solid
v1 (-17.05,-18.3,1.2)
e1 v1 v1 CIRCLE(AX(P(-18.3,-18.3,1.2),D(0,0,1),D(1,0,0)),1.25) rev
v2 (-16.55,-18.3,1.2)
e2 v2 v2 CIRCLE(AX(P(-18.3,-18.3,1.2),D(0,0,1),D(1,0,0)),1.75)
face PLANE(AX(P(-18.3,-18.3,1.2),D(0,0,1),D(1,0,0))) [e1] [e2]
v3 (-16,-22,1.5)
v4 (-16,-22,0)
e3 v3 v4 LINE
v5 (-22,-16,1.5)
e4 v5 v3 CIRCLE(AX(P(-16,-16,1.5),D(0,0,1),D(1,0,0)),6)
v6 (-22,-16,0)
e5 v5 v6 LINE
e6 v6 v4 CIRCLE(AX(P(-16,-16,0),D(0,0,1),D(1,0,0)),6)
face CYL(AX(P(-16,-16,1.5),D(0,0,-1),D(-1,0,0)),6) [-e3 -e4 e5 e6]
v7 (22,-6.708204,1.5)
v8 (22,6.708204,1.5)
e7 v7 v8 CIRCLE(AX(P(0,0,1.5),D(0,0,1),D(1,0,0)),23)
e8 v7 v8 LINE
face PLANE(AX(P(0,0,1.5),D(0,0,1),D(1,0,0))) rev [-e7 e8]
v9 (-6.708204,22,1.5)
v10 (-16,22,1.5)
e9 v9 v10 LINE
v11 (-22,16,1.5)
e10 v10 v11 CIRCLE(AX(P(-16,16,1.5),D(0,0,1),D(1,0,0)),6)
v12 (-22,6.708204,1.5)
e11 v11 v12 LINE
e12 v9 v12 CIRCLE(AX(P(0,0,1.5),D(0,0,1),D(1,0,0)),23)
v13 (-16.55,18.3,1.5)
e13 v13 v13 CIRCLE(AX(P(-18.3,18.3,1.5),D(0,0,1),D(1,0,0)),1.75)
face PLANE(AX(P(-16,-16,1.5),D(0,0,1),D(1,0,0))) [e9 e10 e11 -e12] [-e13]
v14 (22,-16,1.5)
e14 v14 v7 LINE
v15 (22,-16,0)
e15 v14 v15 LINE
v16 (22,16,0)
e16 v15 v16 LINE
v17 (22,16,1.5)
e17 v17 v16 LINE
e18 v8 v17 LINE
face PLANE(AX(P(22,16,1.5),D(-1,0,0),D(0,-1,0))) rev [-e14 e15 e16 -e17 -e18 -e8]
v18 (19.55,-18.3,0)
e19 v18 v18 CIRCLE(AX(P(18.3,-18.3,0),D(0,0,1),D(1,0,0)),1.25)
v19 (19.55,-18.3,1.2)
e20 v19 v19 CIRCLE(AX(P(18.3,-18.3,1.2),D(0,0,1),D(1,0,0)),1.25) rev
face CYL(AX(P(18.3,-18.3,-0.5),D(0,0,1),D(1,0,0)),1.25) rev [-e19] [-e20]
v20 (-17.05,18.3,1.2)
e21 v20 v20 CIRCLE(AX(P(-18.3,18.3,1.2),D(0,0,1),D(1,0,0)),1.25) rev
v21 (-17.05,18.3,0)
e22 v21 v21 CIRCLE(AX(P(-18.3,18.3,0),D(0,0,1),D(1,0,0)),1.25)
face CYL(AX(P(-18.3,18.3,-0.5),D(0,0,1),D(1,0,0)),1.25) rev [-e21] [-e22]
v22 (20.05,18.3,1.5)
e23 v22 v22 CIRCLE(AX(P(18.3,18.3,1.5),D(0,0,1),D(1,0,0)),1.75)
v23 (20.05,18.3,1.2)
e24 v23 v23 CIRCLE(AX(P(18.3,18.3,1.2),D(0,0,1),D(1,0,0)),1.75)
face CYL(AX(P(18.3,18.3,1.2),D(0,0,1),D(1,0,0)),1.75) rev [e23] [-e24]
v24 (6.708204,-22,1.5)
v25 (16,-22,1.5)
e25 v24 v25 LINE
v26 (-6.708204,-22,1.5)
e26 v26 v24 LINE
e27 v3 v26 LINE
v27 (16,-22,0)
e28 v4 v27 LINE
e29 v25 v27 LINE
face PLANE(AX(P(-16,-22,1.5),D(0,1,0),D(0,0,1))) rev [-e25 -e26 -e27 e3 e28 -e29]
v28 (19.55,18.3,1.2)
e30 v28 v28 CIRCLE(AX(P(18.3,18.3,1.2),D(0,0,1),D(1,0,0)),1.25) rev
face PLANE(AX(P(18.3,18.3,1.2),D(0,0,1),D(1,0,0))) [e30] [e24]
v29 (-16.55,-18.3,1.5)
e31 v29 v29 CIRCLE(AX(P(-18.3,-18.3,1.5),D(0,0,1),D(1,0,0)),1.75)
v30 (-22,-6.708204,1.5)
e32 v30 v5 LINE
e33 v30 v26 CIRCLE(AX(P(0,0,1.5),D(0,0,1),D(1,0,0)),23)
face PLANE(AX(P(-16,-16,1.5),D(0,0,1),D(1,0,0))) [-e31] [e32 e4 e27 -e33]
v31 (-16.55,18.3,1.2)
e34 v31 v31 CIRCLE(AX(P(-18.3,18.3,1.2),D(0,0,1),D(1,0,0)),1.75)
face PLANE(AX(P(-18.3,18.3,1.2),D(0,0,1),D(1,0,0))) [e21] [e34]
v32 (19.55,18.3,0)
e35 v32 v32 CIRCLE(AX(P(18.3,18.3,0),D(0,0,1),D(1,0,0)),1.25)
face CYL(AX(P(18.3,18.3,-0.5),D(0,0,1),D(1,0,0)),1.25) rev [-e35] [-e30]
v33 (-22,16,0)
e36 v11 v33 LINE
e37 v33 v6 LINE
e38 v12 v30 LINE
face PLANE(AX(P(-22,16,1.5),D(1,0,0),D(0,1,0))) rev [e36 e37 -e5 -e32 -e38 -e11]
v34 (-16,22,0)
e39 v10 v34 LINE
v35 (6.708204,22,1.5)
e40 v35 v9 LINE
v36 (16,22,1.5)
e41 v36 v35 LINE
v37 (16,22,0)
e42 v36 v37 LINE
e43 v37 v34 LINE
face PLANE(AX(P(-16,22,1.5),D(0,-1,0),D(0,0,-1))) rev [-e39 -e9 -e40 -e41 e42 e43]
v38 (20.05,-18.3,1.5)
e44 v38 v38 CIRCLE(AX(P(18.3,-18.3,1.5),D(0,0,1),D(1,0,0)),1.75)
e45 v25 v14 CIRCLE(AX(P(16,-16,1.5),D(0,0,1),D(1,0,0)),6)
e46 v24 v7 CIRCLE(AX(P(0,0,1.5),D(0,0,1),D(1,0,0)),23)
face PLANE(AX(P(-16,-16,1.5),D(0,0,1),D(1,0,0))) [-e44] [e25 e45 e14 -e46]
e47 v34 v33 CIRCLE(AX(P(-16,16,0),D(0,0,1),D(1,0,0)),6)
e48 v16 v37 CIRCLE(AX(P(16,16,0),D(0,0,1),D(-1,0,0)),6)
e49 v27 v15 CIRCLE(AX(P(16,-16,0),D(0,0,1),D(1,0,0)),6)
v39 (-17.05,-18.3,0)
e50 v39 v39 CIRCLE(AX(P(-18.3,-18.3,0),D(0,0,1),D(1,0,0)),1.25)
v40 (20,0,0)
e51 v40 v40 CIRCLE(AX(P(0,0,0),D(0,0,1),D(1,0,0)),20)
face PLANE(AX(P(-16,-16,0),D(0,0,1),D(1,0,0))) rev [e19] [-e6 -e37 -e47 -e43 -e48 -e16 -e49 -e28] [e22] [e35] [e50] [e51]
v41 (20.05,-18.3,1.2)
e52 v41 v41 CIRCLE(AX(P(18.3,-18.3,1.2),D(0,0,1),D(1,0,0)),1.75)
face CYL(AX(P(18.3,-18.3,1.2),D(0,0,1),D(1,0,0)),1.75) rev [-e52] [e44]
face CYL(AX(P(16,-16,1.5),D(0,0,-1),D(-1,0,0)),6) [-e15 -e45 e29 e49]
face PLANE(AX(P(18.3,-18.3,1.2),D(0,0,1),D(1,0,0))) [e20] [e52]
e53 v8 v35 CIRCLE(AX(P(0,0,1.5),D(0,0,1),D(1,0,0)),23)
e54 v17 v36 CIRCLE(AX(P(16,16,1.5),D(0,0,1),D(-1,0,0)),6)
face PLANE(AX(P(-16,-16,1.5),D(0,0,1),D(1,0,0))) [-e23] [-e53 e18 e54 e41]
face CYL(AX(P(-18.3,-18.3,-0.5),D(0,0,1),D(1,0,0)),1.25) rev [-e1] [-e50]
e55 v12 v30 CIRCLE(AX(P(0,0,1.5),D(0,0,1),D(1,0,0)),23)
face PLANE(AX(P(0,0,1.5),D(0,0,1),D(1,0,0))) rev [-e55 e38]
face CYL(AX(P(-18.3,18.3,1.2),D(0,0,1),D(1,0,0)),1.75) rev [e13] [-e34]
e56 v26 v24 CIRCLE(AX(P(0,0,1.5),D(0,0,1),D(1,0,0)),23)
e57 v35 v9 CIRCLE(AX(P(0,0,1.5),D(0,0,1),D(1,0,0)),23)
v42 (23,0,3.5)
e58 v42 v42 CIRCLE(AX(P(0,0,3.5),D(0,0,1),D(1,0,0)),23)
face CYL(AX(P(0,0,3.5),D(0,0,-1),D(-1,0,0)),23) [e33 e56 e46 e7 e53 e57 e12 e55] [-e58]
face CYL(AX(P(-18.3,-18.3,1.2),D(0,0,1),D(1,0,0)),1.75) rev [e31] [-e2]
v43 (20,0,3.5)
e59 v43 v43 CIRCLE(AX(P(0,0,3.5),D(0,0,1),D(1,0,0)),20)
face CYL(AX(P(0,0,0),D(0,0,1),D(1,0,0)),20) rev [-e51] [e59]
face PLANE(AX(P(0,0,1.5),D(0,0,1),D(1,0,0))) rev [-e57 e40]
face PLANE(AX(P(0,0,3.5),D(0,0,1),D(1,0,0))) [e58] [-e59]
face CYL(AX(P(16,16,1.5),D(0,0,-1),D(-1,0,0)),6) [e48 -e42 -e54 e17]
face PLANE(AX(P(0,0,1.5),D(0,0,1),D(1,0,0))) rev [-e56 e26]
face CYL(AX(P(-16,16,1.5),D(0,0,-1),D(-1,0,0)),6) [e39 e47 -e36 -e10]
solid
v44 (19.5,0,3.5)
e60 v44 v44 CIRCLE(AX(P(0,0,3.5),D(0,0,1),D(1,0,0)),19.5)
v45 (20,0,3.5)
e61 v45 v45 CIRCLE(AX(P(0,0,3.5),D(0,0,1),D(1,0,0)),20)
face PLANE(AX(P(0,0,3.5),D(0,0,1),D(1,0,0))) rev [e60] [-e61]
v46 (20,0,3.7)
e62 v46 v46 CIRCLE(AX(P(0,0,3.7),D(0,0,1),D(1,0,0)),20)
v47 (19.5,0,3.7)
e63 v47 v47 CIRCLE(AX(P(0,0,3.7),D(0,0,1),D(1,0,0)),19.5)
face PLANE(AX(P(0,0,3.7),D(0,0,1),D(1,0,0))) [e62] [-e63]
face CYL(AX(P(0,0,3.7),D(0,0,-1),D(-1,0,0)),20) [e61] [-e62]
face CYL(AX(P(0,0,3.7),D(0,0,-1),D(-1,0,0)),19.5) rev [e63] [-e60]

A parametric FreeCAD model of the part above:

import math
import FreeCAD as App
import Part
import Sketcher

V = App.Vector

doc = App.newDocument("Part")
params = doc.addObject("Spreadsheet::Sheet", "Params")
for row, (alias, value) in enumerate([
    ("sketch1_radius", "6 mm"),
    ("sketch1_width", "32 mm"),
    ("pad1_length", "1.5 mm"),
    ("sketch2_diameter", "40 mm"),
    ("sketch3_diameter", "46 mm"),
    ("sketch3_diameter2", "40 mm"),
    ("pad2_length", "2 mm"),
    ("sketch4_diameter", "2.5 mm"),
    ("pocket2_length", "2 mm"),
    ("sketch5_diameter", "3.5 mm"),
    ("pocket3_length", "0.3 mm"),
    ("sketch6_diameter", "40 mm"),
    ("sketch6_diameter2", "39 mm"),
    ("pad3_length", "0.2 mm"),
], start=1):
    params.set(f"A{row}", alias)
    params.set(f"B{row}", "=" + value)
    params.setAlias(f"B{row}", alias)

body = doc.addObject("PartDesign::Body", "Body")

sketch1 = body.newObject("Sketcher::SketchObject", "Sketch")
sketch1.AttachmentSupport = (doc.getObject("XY_Plane"), [""])
sketch1.MapMode = "FlatFace"
sketch1.addGeometry([
    Part.LineSegment(V(16, 22, 0), V(-16, 22, 0)),
    Part.ArcOfCircle(Part.Circle(V(-16, 16, 0), V(0, 0, 1), 6), math.radians(90), math.radians(180)),
    Part.LineSegment(V(-22, 16, 0), V(-22, -16, 0)),
    Part.ArcOfCircle(Part.Circle(V(-16, -16, 0), V(0, 0, 1), 6), math.radians(180), math.radians(270)),
    Part.LineSegment(V(-16, -22, 0), V(16, -22, 0)),
    Part.ArcOfCircle(Part.Circle(V(16, -16, 0), V(0, 0, 1), 6), math.radians(-90), math.radians(0)),
    Part.LineSegment(V(22, -16, 0), V(22, 16, 0)),
    Part.ArcOfCircle(Part.Circle(V(16, 16, 0), V(0, 0, 1), 6), math.radians(0), math.radians(90)),
], False)
sketch1.addConstraint([
    Sketcher.Constraint("Tangent", 0, 2, 1, 1),
    Sketcher.Constraint("Tangent", 1, 2, 2, 1),
    Sketcher.Constraint("Tangent", 2, 2, 3, 1),
    Sketcher.Constraint("Tangent", 3, 2, 4, 1),
    Sketcher.Constraint("Tangent", 4, 2, 5, 1),
    Sketcher.Constraint("Tangent", 5, 2, 6, 1),
    Sketcher.Constraint("Tangent", 6, 2, 7, 1),
    Sketcher.Constraint("Tangent", 7, 2, 0, 1),
    Sketcher.Constraint("Horizontal", 0),
    Sketcher.Constraint("Vertical", 2),
    Sketcher.Constraint("Horizontal", 4),
    Sketcher.Constraint("Vertical", 6),
    Sketcher.Constraint("Equal", 1, 3),
    Sketcher.Constraint("Equal", 3, 5),
    Sketcher.Constraint("Equal", 5, 7),
    Sketcher.Constraint("Symmetric", 1, 3, 5, 3, -1, 1),
    Sketcher.Constraint("Equal", 4, 2),
    Sketcher.Constraint("Radius", 1, 6.0),
    Sketcher.Constraint("DistanceX", 0, 2, 0, 1, 32.0),
])
sketch1.setExpression("Constraints[17]", "Params.sketch1_radius")
sketch1.setExpression("Constraints[18]", "Params.sketch1_width")
pad1 = body.newObject("PartDesign::Pad", "Pad")
pad1.Profile = sketch1
pad1.setExpression("Length", "Params.pad1_length")

sketch2 = body.newObject("Sketcher::SketchObject", "Sketch001")
sketch2.AttachmentSupport = (doc.getObject("XY_Plane"), [""])
sketch2.MapMode = "FlatFace"
sketch2.AttachmentOffset = App.Placement(V(0, 0, 1.5), App.Rotation())
sketch2.addGeometry(Part.Circle(V(0, 0, 0), V(0, 0, 1), 20), False)
sketch2.addConstraint([
    Sketcher.Constraint("Coincident", 0, 3, -1, 1),
    Sketcher.Constraint("Diameter", 0, 40.0),
])
sketch2.setExpression("Constraints[1]", "Params.sketch2_diameter")
pocket1 = body.newObject("PartDesign::Pocket", "Pocket")
pocket1.Profile = sketch2
pocket1.Type = "ThroughAll"

sketch3 = body.newObject("Sketcher::SketchObject", "Sketch002")
sketch3.AttachmentSupport = (doc.getObject("XY_Plane"), [""])
sketch3.MapMode = "FlatFace"
sketch3.AttachmentOffset = App.Placement(V(0, 0, 1.5), App.Rotation())
sketch3.addGeometry([
    Part.Circle(V(0, 0, 0), V(0, 0, 1), 23),
    Part.Circle(V(0, 0, 0), V(0, 0, 1), 20),
], False)
sketch3.addConstraint([
    Sketcher.Constraint("Coincident", 0, 3, -1, 1),
    Sketcher.Constraint("Coincident", 1, 3, -1, 1),
    Sketcher.Constraint("Diameter", 0, 46.0),
    Sketcher.Constraint("Diameter", 1, 40.0),
])
sketch3.setExpression("Constraints[2]", "Params.sketch3_diameter")
sketch3.setExpression("Constraints[3]", "Params.sketch3_diameter2")
pad2 = body.newObject("PartDesign::Pad", "Pad001")
pad2.Profile = sketch3
pad2.setExpression("Length", "Params.pad2_length")

sketch4 = body.newObject("Sketcher::SketchObject", "Sketch003")
sketch4.AttachmentSupport = (doc.getObject("XY_Plane"), [""])
sketch4.MapMode = "FlatFace"
sketch4.AttachmentOffset = App.Placement(V(0, 0, 1.5), App.Rotation())
sketch4.addGeometry([
    Part.Circle(V(18.3, 18.3, 0), V(0, 0, 1), 1.2),
    Part.Circle(V(-18.3, 18.3, 0), V(0, 0, 1), 1.2),
    Part.Circle(V(18.3, -18.3, 0), V(0, 0, 1), 1.2),
    Part.Circle(V(-18.3, -18.3, 0), V(0, 0, 1), 1.2),
], False)
sketch4.addConstraint([
    Sketcher.Constraint("Equal", 0, 1),
    Sketcher.Constraint("Equal", 1, 2),
    Sketcher.Constraint("Equal", 2, 3),
    Sketcher.Constraint("Symmetric", 1, 3, 2, 3, -1, 1),
    Sketcher.Constraint("Symmetric", 0, 3, 3, 3, -1, 1),
    Sketcher.Constraint("Symmetric", 0, 3, 1, 3, -2),
    Sketcher.Constraint("Diameter", 0, 2.5),
    Sketcher.Constraint("DistanceX", -1, 1, 0, 3, 18.3),
    Sketcher.Constraint("DistanceY", -1, 1, 0, 3, 18.3),
])
sketch4.setExpression("Constraints[6]", "Params.sketch4_diameter")
pocket2 = body.newObject("PartDesign::Pocket", "Pocket001")
pocket2.Profile = sketch4
pocket2.setExpression("Length", "Params.pocket2_length")

sketch5 = body.newObject("Sketcher::SketchObject", "Sketch004")
sketch5.AttachmentSupport = (doc.getObject("XY_Plane"), [""])
sketch5.MapMode = "FlatFace"
sketch5.AttachmentOffset = App.Placement(V(0, 0, 1.5), App.Rotation())
sketch5.addGeometry([
    Part.Circle(V(18.3, 18.3, 0), V(0, 0, 1), 1.8),
    Part.Circle(V(-18.3, 18.3, 0), V(0, 0, 1), 1.8),
    Part.Circle(V(-18.3, -18.3, 0), V(0, 0, 1), 1.8),
    Part.Circle(V(18.3, -18.3, 0), V(0, 0, 1), 1.8),
], False)
sketch5.addConstraint([
    Sketcher.Constraint("Equal", 0, 1),
    Sketcher.Constraint("Equal", 1, 2),
    Sketcher.Constraint("Equal", 2, 3),
    Sketcher.Constraint("Symmetric", 0, 3, 2, 3, -1, 1),
    Sketcher.Constraint("Symmetric", 1, 3, 3, 3, -1, 1),
    Sketcher.Constraint("Symmetric", 0, 3, 1, 3, -2),
    Sketcher.Constraint("Diameter", 0, 3.5),
    Sketcher.Constraint("DistanceX", -1, 1, 0, 3, 18.3),
    Sketcher.Constraint("DistanceY", -1, 1, 0, 3, 18.3),
])
sketch5.setExpression("Constraints[6]", "Params.sketch5_diameter")
pocket3 = body.newObject("PartDesign::Pocket", "Pocket002")
pocket3.Profile = sketch5
pocket3.setExpression("Length", "Params.pocket3_length")
body2 = doc.addObject("PartDesign::Body", "Body001")

sketch6 = body2.newObject("Sketcher::SketchObject", "Sketch005")
sketch6.AttachmentSupport = (doc.getObject("XY_Plane001"), [""])
sketch6.MapMode = "FlatFace"
sketch6.AttachmentOffset = App.Placement(V(0, 0, 3.5), App.Rotation())
sketch6.addGeometry([
    Part.Circle(V(0, 0, 0), V(0, 0, 1), 20),
    Part.Circle(V(0, 0, 0), V(0, 0, 1), 20),
], False)
sketch6.addConstraint([
    Sketcher.Constraint("Coincident", 0, 3, -1, 1),
    Sketcher.Constraint("Coincident", 1, 3, -1, 1),
    Sketcher.Constraint("Diameter", 0, 40.0),
    Sketcher.Constraint("Diameter", 1, 39.0),
])
sketch6.setExpression("Constraints[2]", "Params.sketch6_diameter")
sketch6.setExpression("Constraints[3]", "Params.sketch6_diameter2")
pad3 = body2.newObject("PartDesign::Pad", "Pad002")
pad3.Profile = sketch6
pad3.setExpression("Length", "Params.pad3_length")

doc.recompute()
